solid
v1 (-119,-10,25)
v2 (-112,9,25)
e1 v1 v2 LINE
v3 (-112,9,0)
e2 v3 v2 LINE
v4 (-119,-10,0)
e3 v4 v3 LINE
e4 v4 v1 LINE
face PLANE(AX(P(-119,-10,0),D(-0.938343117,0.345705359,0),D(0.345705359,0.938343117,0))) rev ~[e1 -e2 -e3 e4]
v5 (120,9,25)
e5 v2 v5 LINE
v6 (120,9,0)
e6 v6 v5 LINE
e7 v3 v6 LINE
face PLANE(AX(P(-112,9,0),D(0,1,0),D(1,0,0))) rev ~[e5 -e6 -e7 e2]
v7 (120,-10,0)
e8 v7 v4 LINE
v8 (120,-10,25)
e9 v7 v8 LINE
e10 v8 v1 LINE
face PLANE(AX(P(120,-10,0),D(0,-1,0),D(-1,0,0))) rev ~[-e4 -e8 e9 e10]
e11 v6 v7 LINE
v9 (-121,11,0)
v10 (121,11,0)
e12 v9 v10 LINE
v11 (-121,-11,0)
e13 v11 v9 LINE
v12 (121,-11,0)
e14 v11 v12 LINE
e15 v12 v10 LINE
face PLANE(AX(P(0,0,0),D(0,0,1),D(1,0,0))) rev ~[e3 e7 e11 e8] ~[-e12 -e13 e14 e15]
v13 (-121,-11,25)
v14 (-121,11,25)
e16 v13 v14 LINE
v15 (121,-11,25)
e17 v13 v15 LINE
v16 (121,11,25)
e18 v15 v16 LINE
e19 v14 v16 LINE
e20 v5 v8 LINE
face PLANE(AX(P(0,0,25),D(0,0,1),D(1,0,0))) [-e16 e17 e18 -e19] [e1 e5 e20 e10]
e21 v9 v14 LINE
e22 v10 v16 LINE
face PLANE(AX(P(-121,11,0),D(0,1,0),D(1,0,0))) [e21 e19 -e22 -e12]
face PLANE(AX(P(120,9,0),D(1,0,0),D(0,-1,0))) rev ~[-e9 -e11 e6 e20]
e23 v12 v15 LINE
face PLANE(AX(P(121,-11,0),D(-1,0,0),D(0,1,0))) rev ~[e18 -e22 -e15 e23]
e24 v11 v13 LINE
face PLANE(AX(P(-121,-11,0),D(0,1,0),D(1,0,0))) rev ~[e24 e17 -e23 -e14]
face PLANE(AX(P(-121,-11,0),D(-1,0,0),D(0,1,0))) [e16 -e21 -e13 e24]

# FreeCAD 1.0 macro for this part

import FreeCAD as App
import Part
import Sketcher
Q = App.Units.Quantity


def add_polygon(sketch, points):
    """Adds a closed chain of lines whose ends are joined by coincident constraints."""
    first, n = sketch.GeometryCount, len(points)
    for a, b in zip(points, points[1:] + points[:1]):
        sketch.addGeometry(Part.LineSegment(App.Vector(*a, 0), App.Vector(*b, 0)), False)
    for i in range(n):
        sketch.addConstraint(Sketcher.Constraint("Coincident", first + i, 2, first + (i + 1) % n, 1))

doc = App.newDocument("Part")
body = doc.addObject("PartDesign::Body", "Body")

# Sketch on XY plane
sketch1 = doc.addObject("Sketcher::SketchObject", "Sketch")
body.addObject(sketch1)
sketch1.AttachmentSupport = (doc.XY_Plane, [""])
sketch1.MapMode = "FlatFace"
add_polygon(sketch1, [(-121, 11), (-121, -11), (121, -11), (121, 11)])  # lines 0-3
add_polygon(sketch1, [(-112, 9), (120, 9), (120, -10), (-119, -10)])  # lines 4-7
sketch1.addConstraint(Sketcher.Constraint("Vertical", 0))
sketch1.addConstraint(Sketcher.Constraint("Horizontal", 1))
sketch1.addConstraint(Sketcher.Constraint("Vertical", 2))
sketch1.addConstraint(Sketcher.Constraint("Horizontal", 3))
sketch1.addConstraint(Sketcher.Constraint("Horizontal", 4))
sketch1.addConstraint(Sketcher.Constraint("Vertical", 5))
sketch1.addConstraint(Sketcher.Constraint("Horizontal", 6))
sketch1.addConstraint(Sketcher.Constraint("Symmetric", 0, 2, 2, 2, -1, 1))
sketch1.addConstraint(Sketcher.Constraint("DistanceX", 1, 1, 1, 2, Q("242 mm")))
sketch1.addConstraint(Sketcher.Constraint("DistanceX", 4, 1, 4, 2, Q("232 mm")))
sketch1.addConstraint(Sketcher.Constraint("DistanceX", 6, 2, 6, 1, Q("239 mm")))
sketch1.addConstraint(Sketcher.Constraint("DistanceY", 0, 2, 0, 1, Q("22 mm")))
sketch1.addConstraint(Sketcher.Constraint("DistanceY", 5, 2, 5, 1, Q("19 mm")))
sketch1.addConstraint(Sketcher.Constraint("DistanceX", -1, 1, 4, 2, Q("120 mm")))
sketch1.addConstraint(Sketcher.Constraint("DistanceY", -1, 1, 4, 2, Q("9 mm")))
pad1 = doc.addObject("PartDesign::Pad", "Pad")
body.addObject(pad1)
pad1.Profile = sketch1
pad1.Length = 25

doc.recompute()
